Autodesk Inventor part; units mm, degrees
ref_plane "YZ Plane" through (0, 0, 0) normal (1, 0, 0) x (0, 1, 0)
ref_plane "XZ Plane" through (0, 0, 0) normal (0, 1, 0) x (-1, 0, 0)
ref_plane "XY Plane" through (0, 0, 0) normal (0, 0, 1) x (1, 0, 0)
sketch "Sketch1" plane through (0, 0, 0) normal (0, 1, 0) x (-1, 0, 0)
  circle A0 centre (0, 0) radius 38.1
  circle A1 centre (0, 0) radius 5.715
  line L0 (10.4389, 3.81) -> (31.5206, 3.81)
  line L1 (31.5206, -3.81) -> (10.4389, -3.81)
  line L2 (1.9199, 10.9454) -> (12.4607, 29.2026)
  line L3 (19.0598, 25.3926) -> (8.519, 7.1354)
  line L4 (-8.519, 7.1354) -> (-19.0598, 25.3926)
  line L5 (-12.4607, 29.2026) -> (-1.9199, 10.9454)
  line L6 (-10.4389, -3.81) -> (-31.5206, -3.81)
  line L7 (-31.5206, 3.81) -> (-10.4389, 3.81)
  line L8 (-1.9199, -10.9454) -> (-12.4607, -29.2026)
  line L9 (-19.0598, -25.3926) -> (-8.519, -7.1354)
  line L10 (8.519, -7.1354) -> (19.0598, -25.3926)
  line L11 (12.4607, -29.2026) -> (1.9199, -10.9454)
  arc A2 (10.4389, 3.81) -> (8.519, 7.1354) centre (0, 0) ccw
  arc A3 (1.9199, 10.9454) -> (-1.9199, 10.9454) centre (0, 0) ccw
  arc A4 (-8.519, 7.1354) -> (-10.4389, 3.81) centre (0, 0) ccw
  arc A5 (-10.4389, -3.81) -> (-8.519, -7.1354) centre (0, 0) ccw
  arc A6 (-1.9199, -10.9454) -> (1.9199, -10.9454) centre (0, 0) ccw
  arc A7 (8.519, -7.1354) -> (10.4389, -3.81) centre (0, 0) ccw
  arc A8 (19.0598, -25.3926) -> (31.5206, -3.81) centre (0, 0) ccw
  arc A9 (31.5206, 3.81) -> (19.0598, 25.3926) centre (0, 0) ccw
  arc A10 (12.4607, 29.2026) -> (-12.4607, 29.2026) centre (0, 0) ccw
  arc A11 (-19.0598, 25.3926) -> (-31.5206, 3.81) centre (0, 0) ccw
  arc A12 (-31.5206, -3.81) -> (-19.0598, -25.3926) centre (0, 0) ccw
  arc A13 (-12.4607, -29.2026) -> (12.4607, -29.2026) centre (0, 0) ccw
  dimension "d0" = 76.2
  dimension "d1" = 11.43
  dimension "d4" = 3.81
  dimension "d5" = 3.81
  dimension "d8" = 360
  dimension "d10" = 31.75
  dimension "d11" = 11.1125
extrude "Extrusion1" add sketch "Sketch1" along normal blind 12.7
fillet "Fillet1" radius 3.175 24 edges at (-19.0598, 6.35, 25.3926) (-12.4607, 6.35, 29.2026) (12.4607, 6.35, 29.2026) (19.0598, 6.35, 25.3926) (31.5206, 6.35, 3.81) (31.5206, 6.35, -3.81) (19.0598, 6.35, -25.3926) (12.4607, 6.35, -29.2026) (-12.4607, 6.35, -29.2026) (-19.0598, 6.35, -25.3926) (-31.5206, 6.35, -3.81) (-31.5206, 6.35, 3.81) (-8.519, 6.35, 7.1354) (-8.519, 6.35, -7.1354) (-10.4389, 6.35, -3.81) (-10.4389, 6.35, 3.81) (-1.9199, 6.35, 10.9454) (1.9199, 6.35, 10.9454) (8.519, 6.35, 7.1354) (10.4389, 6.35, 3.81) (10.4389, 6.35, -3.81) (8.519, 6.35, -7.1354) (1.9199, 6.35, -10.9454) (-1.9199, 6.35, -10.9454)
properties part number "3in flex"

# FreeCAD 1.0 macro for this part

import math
import FreeCAD as App
import Part
import Sketcher
Q = App.Units.Quantity


def edges_at(feature, points):
    """Names of the edges that pass closest to the given points."""
    edges = feature.Shape.Edges
    near = lambda p: min(range(len(edges)), key=lambda i: edges[i].distToShape(Part.Vertex(*p))[0])
    return sorted({f"Edge{near(p) + 1}" for p in points})

doc = App.newDocument("Part")
body = doc.addObject("PartDesign::Body", "Body")

# Sketch on XZ plane
sketch1 = body.newObject("Sketcher::SketchObject", "Sketch")
sketch1.AttachmentSupport = (doc.getObject("XZ_Plane"), [""])
sketch1.MapMode = "FlatFace"
sketch1.addGeometry([
    Part.Circle(App.Vector(0, 0, 0), App.Vector(0, 0, 1), 38.1),  # 0
    Part.LineSegment(App.Vector(31.5206, -3.81, 0), App.Vector(10.4389, -3.81, 0)),  # 1
    Part.ArcOfCircle(Part.Circle(App.Vector(0, 0, 0), App.Vector(0, 0, 1), 11.112506), math.radians(-39.949089), math.radians(-20.051121)),  # 2
    Part.LineSegment(App.Vector(8.519, -7.1354, 0), App.Vector(19.0598, -25.3926, 0)),  # 3
    Part.ArcOfCircle(Part.Circle(App.Vector(0, 0, 0), App.Vector(0, 0, 1), 31.749962), math.radians(-53.107942), math.radians(-6.892096)),  # 4
    Part.LineSegment(App.Vector(12.4607, -29.2026, 0), App.Vector(1.9199, -10.9454, 0)),  # 5
    Part.ArcOfCircle(Part.Circle(App.Vector(0, 0, 0), App.Vector(0, 0, 1), 11.112506), math.radians(-99.948872), math.radians(-80.051128)),  # 6
    Part.LineSegment(App.Vector(-1.9199, -10.9454, 0), App.Vector(-12.4607, -29.2026, 0)),  # 7
    Part.ArcOfCircle(Part.Circle(App.Vector(0, 0, 0), App.Vector(0, 0, 1), 31.749975), math.radians(-113.107861), math.radians(-66.892139)),  # 8
    Part.LineSegment(App.Vector(-10.4389, -3.81, 0), App.Vector(-31.5206, -3.81, 0)),  # 9
    Part.ArcOfCircle(Part.Circle(App.Vector(0, 0, 0), App.Vector(0, 0, 1), 31.750029), math.radians(-173.107904), math.radians(-126.892058)),  # 10
    Part.LineSegment(App.Vector(-19.0598, -25.3926, 0), App.Vector(-8.519, -7.1354, 0)),  # 11
    Part.ArcOfCircle(Part.Circle(App.Vector(0, 0, 0), App.Vector(0, 0, 1), 11.112458), math.radians(-159.948879), math.radians(-140.050911)),  # 12
    Part.LineSegment(App.Vector(19.0598, 25.3926, 0), App.Vector(8.519, 7.1354, 0)),  # 13
    Part.ArcOfCircle(Part.Circle(App.Vector(0, 0, 0), App.Vector(0, 0, 1), 11.112458), math.radians(20.051121), math.radians(39.949089)),  # 14
    Part.LineSegment(App.Vector(10.4389, 3.81, 0), App.Vector(31.5206, 3.81, 0)),  # 15
    Part.ArcOfCircle(Part.Circle(App.Vector(0, 0, 0), App.Vector(0, 0, 1), 31.750029), math.radians(6.892096), math.radians(53.107942)),  # 16
    Part.Circle(App.Vector(0, 0, 0), App.Vector(0, 0, 1), 5.715),  # 17
    Part.LineSegment(App.Vector(-31.5206, 3.81, 0), App.Vector(-10.4389, 3.81, 0)),  # 18
    Part.ArcOfCircle(Part.Circle(App.Vector(0, 0, 0), App.Vector(0, 0, 1), 11.112506), math.radians(140.050911), math.radians(159.948879)),  # 19
    Part.LineSegment(App.Vector(-8.519, 7.1354, 0), App.Vector(-19.0598, 25.3926, 0)),  # 20
    Part.ArcOfCircle(Part.Circle(App.Vector(0, 0, 0), App.Vector(0, 0, 1), 31.749962), math.radians(126.892058), math.radians(173.107904)),  # 21
    Part.LineSegment(App.Vector(-12.4607, 29.2026, 0), App.Vector(-1.9199, 10.9454, 0)),  # 22
    Part.ArcOfCircle(Part.Circle(App.Vector(0, 0, 0), App.Vector(0, 0, 1), 11.112506), math.radians(80.051128), math.radians(99.948872)),  # 23
    Part.LineSegment(App.Vector(1.9199, 10.9454, 0), App.Vector(12.4607, 29.2026, 0)),  # 24
    Part.ArcOfCircle(Part.Circle(App.Vector(0, 0, 0), App.Vector(0, 0, 1), 31.749975), math.radians(66.892139), math.radians(113.107861)),  # 25
], False)
sketch1.addConstraint([
    Sketcher.Constraint("Coincident", 1, 2, 2, 2),
    Sketcher.Constraint("Coincident", 2, 1, 3, 1),
    Sketcher.Constraint("Coincident", 3, 2, 4, 1),
    Sketcher.Constraint("Coincident", 4, 2, 1, 1),
    Sketcher.Constraint("Coincident", 5, 2, 6, 2),
    Sketcher.Constraint("Coincident", 6, 1, 7, 1),
    Sketcher.Constraint("Coincident", 7, 2, 8, 1),
    Sketcher.Constraint("Coincident", 8, 2, 5, 1),
    Sketcher.Constraint("Coincident", 9, 2, 10, 1),
    Sketcher.Constraint("Coincident", 10, 2, 11, 1),
    Sketcher.Constraint("Coincident", 11, 2, 12, 2),
    Sketcher.Constraint("Coincident", 12, 1, 9, 1),
    Sketcher.Constraint("Coincident", 13, 2, 14, 2),
    Sketcher.Constraint("Coincident", 14, 1, 15, 1),
    Sketcher.Constraint("Coincident", 15, 2, 16, 1),
    Sketcher.Constraint("Coincident", 16, 2, 13, 1),
    Sketcher.Constraint("Coincident", 18, 2, 19, 2),
    Sketcher.Constraint("Coincident", 19, 1, 20, 1),
    Sketcher.Constraint("Coincident", 20, 2, 21, 1),
    Sketcher.Constraint("Coincident", 21, 2, 18, 1),
    Sketcher.Constraint("Coincident", 22, 2, 23, 2),
    Sketcher.Constraint("Coincident", 23, 1, 24, 1),
    Sketcher.Constraint("Coincident", 24, 2, 25, 1),
    Sketcher.Constraint("Coincident", 25, 2, 22, 1),
    Sketcher.Constraint("Horizontal", 1),
    Sketcher.Constraint("Horizontal", 9),
    Sketcher.Constraint("Horizontal", 15),
    Sketcher.Constraint("Horizontal", 18),
    Sketcher.Constraint("Coincident", 0, 3, -1, 1),
    Sketcher.Constraint("Coincident", 2, 3, -1, 1),
    Sketcher.Constraint("Coincident", 4, 3, -1, 1),
    Sketcher.Constraint("Coincident", 6, 3, -1, 1),
    Sketcher.Constraint("Coincident", 8, 3, -1, 1),
    Sketcher.Constraint("Coincident", 10, 3, -1, 1),
    Sketcher.Constraint("Coincident", 12, 3, -1, 1),
    Sketcher.Constraint("Coincident", 14, 3, -1, 1),
    Sketcher.Constraint("Coincident", 16, 3, -1, 1),
    Sketcher.Constraint("Coincident", 17, 3, -1, 1),
    Sketcher.Constraint("Coincident", 19, 3, -1, 1),
    Sketcher.Constraint("Coincident", 21, 3, -1, 1),
    Sketcher.Constraint("Coincident", 23, 3, -1, 1),
    Sketcher.Constraint("Coincident", 25, 3, -1, 1),
    Sketcher.Constraint("Equal", 2, 6),
    Sketcher.Constraint("Equal", 4, 8),
    Sketcher.Constraint("Equal", 8, 10),
    Sketcher.Constraint("Equal", 6, 12),
    Sketcher.Constraint("Equal", 12, 14),
    Sketcher.Constraint("Equal", 10, 16),
    Sketcher.Constraint("Equal", 14, 19),
    Sketcher.Constraint("Equal", 16, 21),
    Sketcher.Constraint("Equal", 19, 23),
    Sketcher.Constraint("Equal", 21, 25),
    Sketcher.Constraint("Parallel", 3, 5),
    Sketcher.Constraint("Parallel", 7, 11),
    Sketcher.Constraint("Parallel", 11, 13),
    Sketcher.Constraint("Parallel", 5, 20),
    Sketcher.Constraint("Parallel", 20, 22),
    Sketcher.Constraint("Parallel", 13, 24),
    Sketcher.Constraint("Horizontal", 5, 2, 6, 1),
    Sketcher.Constraint("Horizontal", 7, 2, 8, 2),
    Sketcher.Constraint("Horizontal", 4, 2, 9, 2),
    Sketcher.Constraint("Horizontal", 3, 2, 10, 2),
    Sketcher.Constraint("Horizontal", 15, 2, 18, 2),
    Sketcher.Constraint("Horizontal", 13, 2, 19, 1),
    Sketcher.Constraint("Horizontal", 22, 2, 23, 1),
    Sketcher.Constraint("Vertical", 2, 1, 13, 2),
    Sketcher.Constraint("Vertical", 1, 2, 14, 1),
    Sketcher.Constraint("Vertical", 6, 1, 22, 2),
    Sketcher.Constraint("Equal", 3, 5),
    Sketcher.Constraint("Diameter", 0, Q("3 in")),
    Sketcher.Constraint("Diameter", 17, Q("0.45 in")),
    Sketcher.Constraint("Radius", 4, Q("1.25 in")),
    Sketcher.Constraint("Radius", 2, Q("0.4375 in")),
    Sketcher.Constraint("DistanceY", 1, 2, -1, 1, Q("0.15 in")),
    Sketcher.Constraint("DistanceY", 5, 2, 2, 1, Q("0.15 in")),
    Sketcher.Constraint("Angle", 3, Q("-60 deg")),
])
pad1 = body.newObject("PartDesign::Pad", "Pad")
pad1.Profile = sketch1
pad1.Length = Q("0.5 in")
pad1.Reversed = True
doc.recompute()

fillet = body.newObject("PartDesign::Fillet", "Fillet")
fillet.Base = (pad1, edges_at(pad1, [
    (-19.06, 6.35, 25.393),
    (-12.461, 6.35, 29.203),
    (12.461, 6.35, 29.203),
    (19.06, 6.35, 25.393),
    (31.521, 6.35, 3.81),
    (31.521, 6.35, -3.81),
    (19.06, 6.35, -25.393),
    (12.461, 6.35, -29.203),
    (-12.461, 6.35, -29.203),
    (-19.06, 6.35, -25.393),
    (-31.521, 6.35, -3.81),
    (-31.521, 6.35, 3.81),
    (-8.519, 6.35, 7.135),
    (-8.519, 6.35, -7.135),
    (-10.439, 6.35, -3.81),
    (-10.439, 6.35, 3.81),
    (-1.92, 6.35, 10.945),
    (1.92, 6.35, 10.945),
    (8.519, 6.35, 7.135),
    (10.439, 6.35, 3.81),
    (10.439, 6.35, -3.81),
    (8.519, 6.35, -7.135),
    (1.92, 6.35, -10.945),
    (-1.92, 6.35, -10.945),
]))
fillet.Radius = Q("0.125 in")

doc.recompute()
